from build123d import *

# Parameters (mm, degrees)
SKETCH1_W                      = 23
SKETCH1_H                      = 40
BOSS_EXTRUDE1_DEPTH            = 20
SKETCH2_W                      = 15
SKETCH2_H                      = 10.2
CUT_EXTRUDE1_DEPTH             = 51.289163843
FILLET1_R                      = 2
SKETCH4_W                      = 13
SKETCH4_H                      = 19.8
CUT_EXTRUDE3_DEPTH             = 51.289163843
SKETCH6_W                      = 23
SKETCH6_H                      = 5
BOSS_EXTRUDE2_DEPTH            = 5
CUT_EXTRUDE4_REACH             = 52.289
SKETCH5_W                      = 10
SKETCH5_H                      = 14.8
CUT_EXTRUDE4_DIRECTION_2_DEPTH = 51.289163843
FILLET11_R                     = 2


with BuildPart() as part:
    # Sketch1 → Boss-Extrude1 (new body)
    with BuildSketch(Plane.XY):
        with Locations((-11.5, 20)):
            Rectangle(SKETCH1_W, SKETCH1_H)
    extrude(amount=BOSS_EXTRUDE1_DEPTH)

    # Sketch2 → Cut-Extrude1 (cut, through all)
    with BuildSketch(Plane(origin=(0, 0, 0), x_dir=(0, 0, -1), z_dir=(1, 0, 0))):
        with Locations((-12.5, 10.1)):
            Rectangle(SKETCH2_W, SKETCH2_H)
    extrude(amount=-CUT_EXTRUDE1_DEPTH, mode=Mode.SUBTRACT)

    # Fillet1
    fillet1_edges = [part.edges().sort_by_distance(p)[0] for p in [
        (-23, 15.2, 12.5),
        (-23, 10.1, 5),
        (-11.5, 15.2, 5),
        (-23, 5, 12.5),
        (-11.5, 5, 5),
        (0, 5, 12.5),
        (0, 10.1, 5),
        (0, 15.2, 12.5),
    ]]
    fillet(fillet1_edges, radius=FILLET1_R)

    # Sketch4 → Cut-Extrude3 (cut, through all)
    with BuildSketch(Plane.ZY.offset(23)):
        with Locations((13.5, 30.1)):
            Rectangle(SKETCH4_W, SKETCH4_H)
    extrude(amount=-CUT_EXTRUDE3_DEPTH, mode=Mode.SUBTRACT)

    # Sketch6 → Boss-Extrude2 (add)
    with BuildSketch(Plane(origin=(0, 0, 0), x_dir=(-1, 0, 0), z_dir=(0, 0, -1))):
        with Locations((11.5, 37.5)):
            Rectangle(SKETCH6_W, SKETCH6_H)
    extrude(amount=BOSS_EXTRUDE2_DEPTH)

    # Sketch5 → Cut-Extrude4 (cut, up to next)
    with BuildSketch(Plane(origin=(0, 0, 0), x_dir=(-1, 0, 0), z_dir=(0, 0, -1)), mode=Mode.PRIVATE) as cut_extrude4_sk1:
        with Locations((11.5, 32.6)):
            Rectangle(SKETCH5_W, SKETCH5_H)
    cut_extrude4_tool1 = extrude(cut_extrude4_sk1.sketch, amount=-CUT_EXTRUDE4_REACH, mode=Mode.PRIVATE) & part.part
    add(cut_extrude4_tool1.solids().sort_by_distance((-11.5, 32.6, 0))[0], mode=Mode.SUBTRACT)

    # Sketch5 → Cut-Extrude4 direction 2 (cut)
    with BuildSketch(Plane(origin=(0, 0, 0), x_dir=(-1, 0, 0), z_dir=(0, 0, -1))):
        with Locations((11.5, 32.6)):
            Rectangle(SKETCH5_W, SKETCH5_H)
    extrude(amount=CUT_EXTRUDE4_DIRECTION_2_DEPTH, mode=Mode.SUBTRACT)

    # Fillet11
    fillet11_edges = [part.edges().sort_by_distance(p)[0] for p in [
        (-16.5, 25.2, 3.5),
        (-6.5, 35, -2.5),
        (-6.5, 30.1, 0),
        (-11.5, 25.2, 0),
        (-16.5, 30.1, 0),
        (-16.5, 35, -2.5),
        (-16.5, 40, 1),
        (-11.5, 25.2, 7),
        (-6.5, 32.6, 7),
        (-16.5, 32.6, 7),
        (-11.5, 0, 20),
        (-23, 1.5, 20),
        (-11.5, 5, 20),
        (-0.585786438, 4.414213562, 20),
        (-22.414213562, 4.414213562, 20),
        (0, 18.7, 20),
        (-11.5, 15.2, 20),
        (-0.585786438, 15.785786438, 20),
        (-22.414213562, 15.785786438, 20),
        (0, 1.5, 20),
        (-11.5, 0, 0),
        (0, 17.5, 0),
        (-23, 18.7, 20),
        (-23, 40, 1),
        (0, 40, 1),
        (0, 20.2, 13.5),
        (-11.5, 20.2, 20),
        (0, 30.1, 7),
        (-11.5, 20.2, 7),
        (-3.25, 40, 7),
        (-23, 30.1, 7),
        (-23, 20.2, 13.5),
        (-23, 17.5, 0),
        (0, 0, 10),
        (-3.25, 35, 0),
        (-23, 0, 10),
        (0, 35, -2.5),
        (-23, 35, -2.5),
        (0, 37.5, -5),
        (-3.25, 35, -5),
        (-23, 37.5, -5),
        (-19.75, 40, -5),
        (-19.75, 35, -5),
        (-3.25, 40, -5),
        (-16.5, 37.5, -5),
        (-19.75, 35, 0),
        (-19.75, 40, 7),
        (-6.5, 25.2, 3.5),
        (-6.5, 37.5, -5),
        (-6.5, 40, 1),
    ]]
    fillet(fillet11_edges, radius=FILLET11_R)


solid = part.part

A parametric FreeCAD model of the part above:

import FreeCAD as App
import Part
import Sketcher
from FreeCAD import Vector
Q = App.Units.Quantity


def edges_at(feature, points):
    """Names of the edges that pass closest to the given points."""
    edges = feature.Shape.Edges
    near = lambda p: min(range(len(edges)), key=lambda i: edges[i].distToShape(Part.Vertex(*p))[0])
    return sorted({f"Edge{near(p) + 1}" for p in points})

doc = App.newDocument("Part")
body = doc.addObject("PartDesign::Body", "Body")

# Sketch on XY plane
sketch1 = body.newObject("Sketcher::SketchObject", "Sketch")
sketch1.AttachmentSupport = (doc.getObject("XY_Plane"), [""])
sketch1.MapMode = "FlatFace"
sketch1.addGeometry(Part.LineSegment(Vector(-23, 40, 0), Vector(-23, 0, 0)), False)
sketch1.addGeometry(Part.LineSegment(Vector(-23, 0, 0), Vector(0, 0, 0)), False)
sketch1.addGeometry(Part.LineSegment(Vector(0, 0, 0), Vector(0, 40, 0)), False)
sketch1.addGeometry(Part.LineSegment(Vector(0, 40, 0), Vector(-23, 40, 0)), False)
sketch1.addConstraint(Sketcher.Constraint("Coincident", 0, 2, 1, 1))
sketch1.addConstraint(Sketcher.Constraint("Coincident", 1, 2, 2, 1))
sketch1.addConstraint(Sketcher.Constraint("Coincident", 2, 2, 3, 1))
sketch1.addConstraint(Sketcher.Constraint("Coincident", 3, 2, 0, 1))
sketch1.addConstraint(Sketcher.Constraint("Vertical", 0))
sketch1.addConstraint(Sketcher.Constraint("Horizontal", 1))
sketch1.addConstraint(Sketcher.Constraint("Vertical", 2))
sketch1.addConstraint(Sketcher.Constraint("Horizontal", 3))
sketch1.addConstraint(Sketcher.Constraint("Coincident", 1, 2, -1, 1))
sketch1.addConstraint(Sketcher.Constraint("DistanceX", 1, 1, 1, 2, Q("23 mm")))
sketch1.addConstraint(Sketcher.Constraint("DistanceY", 0, 2, 0, 1, Q("40 mm")))
pad1 = body.newObject("PartDesign::Pad", "Pad")
pad1.Profile = sketch1
pad1.Length = 20

# Sketch on YZ plane
sketch2 = body.newObject("Sketcher::SketchObject", "Sketch001")
sketch2.AttachmentSupport = (doc.getObject("YZ_Plane"), [""])
sketch2.MapMode = "FlatFace"
sketch2.addGeometry(Part.LineSegment(Vector(15.2, 20, 0), Vector(5, 20, 0)), False)
sketch2.addGeometry(Part.LineSegment(Vector(5, 20, 0), Vector(5, 5, 0)), False)
sketch2.addGeometry(Part.LineSegment(Vector(5, 5, 0), Vector(15.2, 5, 0)), False)
sketch2.addGeometry(Part.LineSegment(Vector(15.2, 5, 0), Vector(15.2, 20, 0)), False)
sketch2.addConstraint(Sketcher.Constraint("Coincident", 0, 2, 1, 1))
sketch2.addConstraint(Sketcher.Constraint("Coincident", 1, 2, 2, 1))
sketch2.addConstraint(Sketcher.Constraint("Coincident", 2, 2, 3, 1))
sketch2.addConstraint(Sketcher.Constraint("Coincident", 3, 2, 0, 1))
sketch2.addConstraint(Sketcher.Constraint("Horizontal", 0))
sketch2.addConstraint(Sketcher.Constraint("Vertical", 1))
sketch2.addConstraint(Sketcher.Constraint("Horizontal", 2))
sketch2.addConstraint(Sketcher.Constraint("Vertical", 3))
sketch2.addConstraint(Sketcher.Constraint("DistanceY", 1, 2, 1, 1, Q("15 mm")))
sketch2.addConstraint(Sketcher.Constraint("DistanceX", 0, 2, 0, 1, Q("10.2 mm")))
sketch2.addConstraint(Sketcher.Constraint("DistanceX", -1, 1, 0, 2, Q("5 mm")))
sketch2.addConstraint(Sketcher.Constraint("DistanceY", -1, 1, 0, 2, Q("20 mm")))
pocket1 = body.newObject("PartDesign::Pocket", "Pocket")
pocket1.Profile = sketch2
pocket1.Type = "ThroughAll"
doc.recompute()

fillet = body.newObject("PartDesign::Fillet", "Fillet")
fillet.Base = (pocket1, edges_at(pocket1, [
    (-23, 15.2, 12.5),
    (-23, 10.1, 5),
    (-11.5, 15.2, 5),
    (-23, 5, 12.5),
    (-11.5, 5, 5),
    (0, 5, 12.5),
    (0, 10.1, 5),
    (0, 15.2, 12.5),
]))
fillet.Radius = 2

# Sketch on YZ plane
sketch3 = body.newObject("Sketcher::SketchObject", "Sketch002")
sketch3.AttachmentSupport = (doc.getObject("YZ_Plane"), [""])
sketch3.MapMode = "FlatFace"
sketch3.AttachmentOffset = App.Placement(Vector(0, 0, -23), App.Rotation())
sketch3.addGeometry(Part.LineSegment(Vector(40, 7, 0), Vector(20.2, 7, 0)), False)
sketch3.addGeometry(Part.LineSegment(Vector(20.2, 7, 0), Vector(20.2, 20, 0)), False)
sketch3.addGeometry(Part.LineSegment(Vector(20.2, 20, 0), Vector(40, 20, 0)), False)
sketch3.addGeometry(Part.LineSegment(Vector(40, 20, 0), Vector(40, 7, 0)), False)
sketch3.addConstraint(Sketcher.Constraint("Coincident", 0, 2, 1, 1))
sketch3.addConstraint(Sketcher.Constraint("Coincident", 1, 2, 2, 1))
sketch3.addConstraint(Sketcher.Constraint("Coincident", 2, 2, 3, 1))
sketch3.addConstraint(Sketcher.Constraint("Coincident", 3, 2, 0, 1))
sketch3.addConstraint(Sketcher.Constraint("Horizontal", 0))
sketch3.addConstraint(Sketcher.Constraint("Vertical", 1))
sketch3.addConstraint(Sketcher.Constraint("Horizontal", 2))
sketch3.addConstraint(Sketcher.Constraint("Vertical", 3))
sketch3.addConstraint(Sketcher.Constraint("DistanceY", 1, 1, 1, 2, Q("13 mm")))
sketch3.addConstraint(Sketcher.Constraint("DistanceX", 0, 2, 0, 1, Q("19.8 mm")))
sketch3.addConstraint(Sketcher.Constraint("DistanceY", -1, 1, 0, 2, Q("7 mm")))
sketch3.addConstraint(Sketcher.Constraint("DistanceX", -1, 1, 2, 2, Q("40 mm")))
pocket2 = body.newObject("PartDesign::Pocket", "Pocket001")
pocket2.Profile = sketch3
pocket2.Type = "ThroughAll"
pocket2.Reversed = True

# Sketch on XY plane
sketch4 = body.newObject("Sketcher::SketchObject", "Sketch003")
sketch4.AttachmentSupport = (doc.getObject("XY_Plane"), [""])
sketch4.MapMode = "FlatFace"
sketch4.addGeometry(Part.LineSegment(Vector(0, 40, 0), Vector(0, 35, 0)), False)
sketch4.addGeometry(Part.LineSegment(Vector(0, 35, 0), Vector(-23, 35, 0)), False)
sketch4.addGeometry(Part.LineSegment(Vector(-23, 35, 0), Vector(-23, 40, 0)), False)
sketch4.addGeometry(Part.LineSegment(Vector(-23, 40, 0), Vector(0, 40, 0)), False)
sketch4.addConstraint(Sketcher.Constraint("Coincident", 0, 2, 1, 1))
sketch4.addConstraint(Sketcher.Constraint("Coincident", 1, 2, 2, 1))
sketch4.addConstraint(Sketcher.Constraint("Coincident", 2, 2, 3, 1))
sketch4.addConstraint(Sketcher.Constraint("Coincident", 3, 2, 0, 1))
sketch4.addConstraint(Sketcher.Constraint("Vertical", 0))
sketch4.addConstraint(Sketcher.Constraint("Horizontal", 1))
sketch4.addConstraint(Sketcher.Constraint("Vertical", 2))
sketch4.addConstraint(Sketcher.Constraint("Horizontal", 3))
sketch4.addConstraint(Sketcher.Constraint("PointOnObject", 0, 2, -2))
sketch4.addConstraint(Sketcher.Constraint("DistanceX", 1, 2, 1, 1, Q("23 mm")))
sketch4.addConstraint(Sketcher.Constraint("DistanceY", 0, 2, 0, 1, Q("5 mm")))
sketch4.addConstraint(Sketcher.Constraint("DistanceY", -1, 1, 0, 2, Q("35 mm")))
pad2 = body.newObject("PartDesign::Pad", "Pad001")
pad2.Profile = sketch4
pad2.Length = 5
pad2.Reversed = True

# Sketch on XY plane
sketch5 = body.newObject("Sketcher::SketchObject", "Sketch004")
sketch5.AttachmentSupport = (doc.getObject("XY_Plane"), [""])
sketch5.MapMode = "FlatFace"
sketch5.addGeometry(Part.LineSegment(Vector(-6.5, 40, 0), Vector(-6.5, 25.2, 0)), False)
sketch5.addGeometry(Part.LineSegment(Vector(-6.5, 25.2, 0), Vector(-16.5, 25.2, 0)), False)
sketch5.addGeometry(Part.LineSegment(Vector(-16.5, 25.2, 0), Vector(-16.5, 40, 0)), False)
sketch5.addGeometry(Part.LineSegment(Vector(-16.5, 40, 0), Vector(-6.5, 40, 0)), False)
sketch5.addConstraint(Sketcher.Constraint("Coincident", 0, 2, 1, 1))
sketch5.addConstraint(Sketcher.Constraint("Coincident", 1, 2, 2, 1))
sketch5.addConstraint(Sketcher.Constraint("Coincident", 2, 2, 3, 1))
sketch5.addConstraint(Sketcher.Constraint("Coincident", 3, 2, 0, 1))
sketch5.addConstraint(Sketcher.Constraint("Vertical", 0))
sketch5.addConstraint(Sketcher.Constraint("Horizontal", 1))
sketch5.addConstraint(Sketcher.Constraint("Vertical", 2))
sketch5.addConstraint(Sketcher.Constraint("Horizontal", 3))
sketch5.addConstraint(Sketcher.Constraint("DistanceX", 1, 2, 1, 1, Q("10 mm")))
sketch5.addConstraint(Sketcher.Constraint("DistanceY", 0, 2, 0, 1, Q("14.8 mm")))
sketch5.addConstraint(Sketcher.Constraint("DistanceY", -1, 1, 2, 2, Q("40 mm")))
sketch5.addConstraint(Sketcher.Constraint("DistanceX", 0, 2, -1, 1, Q("6.5 mm")))
pocket3 = body.newObject("PartDesign::Pocket", "Pocket002")
pocket3.Profile = sketch5
pocket3.Type = "UpToFirst"
pocket3.Reversed = True

# Sketch on XY plane
sketch6 = body.newObject("Sketcher::SketchObject", "Sketch005")
sketch6.AttachmentSupport = (doc.getObject("XY_Plane"), [""])
sketch6.MapMode = "FlatFace"
sketch6.addGeometry(Part.LineSegment(Vector(-6.5, 40, 0), Vector(-6.5, 25.2, 0)), False)
sketch6.addGeometry(Part.LineSegment(Vector(-6.5, 25.2, 0), Vector(-16.5, 25.2, 0)), False)
sketch6.addGeometry(Part.LineSegment(Vector(-16.5, 25.2, 0), Vector(-16.5, 40, 0)), False)
sketch6.addGeometry(Part.LineSegment(Vector(-16.5, 40, 0), Vector(-6.5, 40, 0)), False)
sketch6.addConstraint(Sketcher.Constraint("Coincident", 0, 2, 1, 1))
sketch6.addConstraint(Sketcher.Constraint("Coincident", 1, 2, 2, 1))
sketch6.addConstraint(Sketcher.Constraint("Coincident", 2, 2, 3, 1))
sketch6.addConstraint(Sketcher.Constraint("Coincident", 3, 2, 0, 1))
sketch6.addConstraint(Sketcher.Constraint("Vertical", 0))
sketch6.addConstraint(Sketcher.Constraint("Horizontal", 1))
sketch6.addConstraint(Sketcher.Constraint("Vertical", 2))
sketch6.addConstraint(Sketcher.Constraint("Horizontal", 3))
sketch6.addConstraint(Sketcher.Constraint("DistanceX", 1, 2, 1, 1, Q("10 mm")))
sketch6.addConstraint(Sketcher.Constraint("DistanceY", 0, 2, 0, 1, Q("14.8 mm")))
sketch6.addConstraint(Sketcher.Constraint("DistanceY", -1, 1, 2, 2, Q("40 mm")))
sketch6.addConstraint(Sketcher.Constraint("DistanceX", 0, 2, -1, 1, Q("6.5 mm")))
pocket4 = body.newObject("PartDesign::Pocket", "Pocket003")
pocket4.Profile = sketch6
pocket4.Length = 51.289164
doc.recompute()

fillet2 = body.newObject("PartDesign::Fillet", "Fillet001")
fillet2.Base = (pocket4, edges_at(pocket4, [
    (-16.5, 25.2, 3.5),
    (-6.5, 35, -2.5),
    (-6.5, 30.1, 0),
    (-11.5, 25.2, 0),
    (-16.5, 30.1, 0),
    (-16.5, 35, -2.5),
    (-16.5, 40, 1),
    (-11.5, 25.2, 7),
    (-6.5, 32.6, 7),
    (-16.5, 32.6, 7),
    (-11.5, 0, 20),
    (-23, 1.5, 20),
    (-11.5, 5, 20),
    (-0.586, 4.414, 20),
    (-22.414, 4.414, 20),
    (0, 18.7, 20),
    (-11.5, 15.2, 20),
    (-0.586, 15.786, 20),
    (-22.414, 15.786, 20),
    (0, 1.5, 20),
    (-11.5, 0, 0),
    (0, 17.5, 0),
    (-23, 18.7, 20),
    (-23, 40, 1),
    (0, 40, 1),
    (0, 20.2, 13.5),
    (-11.5, 20.2, 20),
    (0, 30.1, 7),
    (-11.5, 20.2, 7),
    (-3.25, 40, 7),
    (-23, 30.1, 7),
    (-23, 20.2, 13.5),
    (-23, 17.5, 0),
    (0, 0, 10),
    (-3.25, 35, 0),
    (-23, 0, 10),
    (0, 35, -2.5),
    (-23, 35, -2.5),
    (0, 37.5, -5),
    (-3.25, 35, -5),
    (-23, 37.5, -5),
    (-19.75, 40, -5),
    (-19.75, 35, -5),
    (-3.25, 40, -5),
    (-16.5, 37.5, -5),
    (-19.75, 35, 0),
    (-19.75, 40, 7),
    (-6.5, 25.2, 3.5),
    (-6.5, 37.5, -5),
    (-6.5, 40, 1),
]))
fillet2.Radius = 2

doc.recompute()
